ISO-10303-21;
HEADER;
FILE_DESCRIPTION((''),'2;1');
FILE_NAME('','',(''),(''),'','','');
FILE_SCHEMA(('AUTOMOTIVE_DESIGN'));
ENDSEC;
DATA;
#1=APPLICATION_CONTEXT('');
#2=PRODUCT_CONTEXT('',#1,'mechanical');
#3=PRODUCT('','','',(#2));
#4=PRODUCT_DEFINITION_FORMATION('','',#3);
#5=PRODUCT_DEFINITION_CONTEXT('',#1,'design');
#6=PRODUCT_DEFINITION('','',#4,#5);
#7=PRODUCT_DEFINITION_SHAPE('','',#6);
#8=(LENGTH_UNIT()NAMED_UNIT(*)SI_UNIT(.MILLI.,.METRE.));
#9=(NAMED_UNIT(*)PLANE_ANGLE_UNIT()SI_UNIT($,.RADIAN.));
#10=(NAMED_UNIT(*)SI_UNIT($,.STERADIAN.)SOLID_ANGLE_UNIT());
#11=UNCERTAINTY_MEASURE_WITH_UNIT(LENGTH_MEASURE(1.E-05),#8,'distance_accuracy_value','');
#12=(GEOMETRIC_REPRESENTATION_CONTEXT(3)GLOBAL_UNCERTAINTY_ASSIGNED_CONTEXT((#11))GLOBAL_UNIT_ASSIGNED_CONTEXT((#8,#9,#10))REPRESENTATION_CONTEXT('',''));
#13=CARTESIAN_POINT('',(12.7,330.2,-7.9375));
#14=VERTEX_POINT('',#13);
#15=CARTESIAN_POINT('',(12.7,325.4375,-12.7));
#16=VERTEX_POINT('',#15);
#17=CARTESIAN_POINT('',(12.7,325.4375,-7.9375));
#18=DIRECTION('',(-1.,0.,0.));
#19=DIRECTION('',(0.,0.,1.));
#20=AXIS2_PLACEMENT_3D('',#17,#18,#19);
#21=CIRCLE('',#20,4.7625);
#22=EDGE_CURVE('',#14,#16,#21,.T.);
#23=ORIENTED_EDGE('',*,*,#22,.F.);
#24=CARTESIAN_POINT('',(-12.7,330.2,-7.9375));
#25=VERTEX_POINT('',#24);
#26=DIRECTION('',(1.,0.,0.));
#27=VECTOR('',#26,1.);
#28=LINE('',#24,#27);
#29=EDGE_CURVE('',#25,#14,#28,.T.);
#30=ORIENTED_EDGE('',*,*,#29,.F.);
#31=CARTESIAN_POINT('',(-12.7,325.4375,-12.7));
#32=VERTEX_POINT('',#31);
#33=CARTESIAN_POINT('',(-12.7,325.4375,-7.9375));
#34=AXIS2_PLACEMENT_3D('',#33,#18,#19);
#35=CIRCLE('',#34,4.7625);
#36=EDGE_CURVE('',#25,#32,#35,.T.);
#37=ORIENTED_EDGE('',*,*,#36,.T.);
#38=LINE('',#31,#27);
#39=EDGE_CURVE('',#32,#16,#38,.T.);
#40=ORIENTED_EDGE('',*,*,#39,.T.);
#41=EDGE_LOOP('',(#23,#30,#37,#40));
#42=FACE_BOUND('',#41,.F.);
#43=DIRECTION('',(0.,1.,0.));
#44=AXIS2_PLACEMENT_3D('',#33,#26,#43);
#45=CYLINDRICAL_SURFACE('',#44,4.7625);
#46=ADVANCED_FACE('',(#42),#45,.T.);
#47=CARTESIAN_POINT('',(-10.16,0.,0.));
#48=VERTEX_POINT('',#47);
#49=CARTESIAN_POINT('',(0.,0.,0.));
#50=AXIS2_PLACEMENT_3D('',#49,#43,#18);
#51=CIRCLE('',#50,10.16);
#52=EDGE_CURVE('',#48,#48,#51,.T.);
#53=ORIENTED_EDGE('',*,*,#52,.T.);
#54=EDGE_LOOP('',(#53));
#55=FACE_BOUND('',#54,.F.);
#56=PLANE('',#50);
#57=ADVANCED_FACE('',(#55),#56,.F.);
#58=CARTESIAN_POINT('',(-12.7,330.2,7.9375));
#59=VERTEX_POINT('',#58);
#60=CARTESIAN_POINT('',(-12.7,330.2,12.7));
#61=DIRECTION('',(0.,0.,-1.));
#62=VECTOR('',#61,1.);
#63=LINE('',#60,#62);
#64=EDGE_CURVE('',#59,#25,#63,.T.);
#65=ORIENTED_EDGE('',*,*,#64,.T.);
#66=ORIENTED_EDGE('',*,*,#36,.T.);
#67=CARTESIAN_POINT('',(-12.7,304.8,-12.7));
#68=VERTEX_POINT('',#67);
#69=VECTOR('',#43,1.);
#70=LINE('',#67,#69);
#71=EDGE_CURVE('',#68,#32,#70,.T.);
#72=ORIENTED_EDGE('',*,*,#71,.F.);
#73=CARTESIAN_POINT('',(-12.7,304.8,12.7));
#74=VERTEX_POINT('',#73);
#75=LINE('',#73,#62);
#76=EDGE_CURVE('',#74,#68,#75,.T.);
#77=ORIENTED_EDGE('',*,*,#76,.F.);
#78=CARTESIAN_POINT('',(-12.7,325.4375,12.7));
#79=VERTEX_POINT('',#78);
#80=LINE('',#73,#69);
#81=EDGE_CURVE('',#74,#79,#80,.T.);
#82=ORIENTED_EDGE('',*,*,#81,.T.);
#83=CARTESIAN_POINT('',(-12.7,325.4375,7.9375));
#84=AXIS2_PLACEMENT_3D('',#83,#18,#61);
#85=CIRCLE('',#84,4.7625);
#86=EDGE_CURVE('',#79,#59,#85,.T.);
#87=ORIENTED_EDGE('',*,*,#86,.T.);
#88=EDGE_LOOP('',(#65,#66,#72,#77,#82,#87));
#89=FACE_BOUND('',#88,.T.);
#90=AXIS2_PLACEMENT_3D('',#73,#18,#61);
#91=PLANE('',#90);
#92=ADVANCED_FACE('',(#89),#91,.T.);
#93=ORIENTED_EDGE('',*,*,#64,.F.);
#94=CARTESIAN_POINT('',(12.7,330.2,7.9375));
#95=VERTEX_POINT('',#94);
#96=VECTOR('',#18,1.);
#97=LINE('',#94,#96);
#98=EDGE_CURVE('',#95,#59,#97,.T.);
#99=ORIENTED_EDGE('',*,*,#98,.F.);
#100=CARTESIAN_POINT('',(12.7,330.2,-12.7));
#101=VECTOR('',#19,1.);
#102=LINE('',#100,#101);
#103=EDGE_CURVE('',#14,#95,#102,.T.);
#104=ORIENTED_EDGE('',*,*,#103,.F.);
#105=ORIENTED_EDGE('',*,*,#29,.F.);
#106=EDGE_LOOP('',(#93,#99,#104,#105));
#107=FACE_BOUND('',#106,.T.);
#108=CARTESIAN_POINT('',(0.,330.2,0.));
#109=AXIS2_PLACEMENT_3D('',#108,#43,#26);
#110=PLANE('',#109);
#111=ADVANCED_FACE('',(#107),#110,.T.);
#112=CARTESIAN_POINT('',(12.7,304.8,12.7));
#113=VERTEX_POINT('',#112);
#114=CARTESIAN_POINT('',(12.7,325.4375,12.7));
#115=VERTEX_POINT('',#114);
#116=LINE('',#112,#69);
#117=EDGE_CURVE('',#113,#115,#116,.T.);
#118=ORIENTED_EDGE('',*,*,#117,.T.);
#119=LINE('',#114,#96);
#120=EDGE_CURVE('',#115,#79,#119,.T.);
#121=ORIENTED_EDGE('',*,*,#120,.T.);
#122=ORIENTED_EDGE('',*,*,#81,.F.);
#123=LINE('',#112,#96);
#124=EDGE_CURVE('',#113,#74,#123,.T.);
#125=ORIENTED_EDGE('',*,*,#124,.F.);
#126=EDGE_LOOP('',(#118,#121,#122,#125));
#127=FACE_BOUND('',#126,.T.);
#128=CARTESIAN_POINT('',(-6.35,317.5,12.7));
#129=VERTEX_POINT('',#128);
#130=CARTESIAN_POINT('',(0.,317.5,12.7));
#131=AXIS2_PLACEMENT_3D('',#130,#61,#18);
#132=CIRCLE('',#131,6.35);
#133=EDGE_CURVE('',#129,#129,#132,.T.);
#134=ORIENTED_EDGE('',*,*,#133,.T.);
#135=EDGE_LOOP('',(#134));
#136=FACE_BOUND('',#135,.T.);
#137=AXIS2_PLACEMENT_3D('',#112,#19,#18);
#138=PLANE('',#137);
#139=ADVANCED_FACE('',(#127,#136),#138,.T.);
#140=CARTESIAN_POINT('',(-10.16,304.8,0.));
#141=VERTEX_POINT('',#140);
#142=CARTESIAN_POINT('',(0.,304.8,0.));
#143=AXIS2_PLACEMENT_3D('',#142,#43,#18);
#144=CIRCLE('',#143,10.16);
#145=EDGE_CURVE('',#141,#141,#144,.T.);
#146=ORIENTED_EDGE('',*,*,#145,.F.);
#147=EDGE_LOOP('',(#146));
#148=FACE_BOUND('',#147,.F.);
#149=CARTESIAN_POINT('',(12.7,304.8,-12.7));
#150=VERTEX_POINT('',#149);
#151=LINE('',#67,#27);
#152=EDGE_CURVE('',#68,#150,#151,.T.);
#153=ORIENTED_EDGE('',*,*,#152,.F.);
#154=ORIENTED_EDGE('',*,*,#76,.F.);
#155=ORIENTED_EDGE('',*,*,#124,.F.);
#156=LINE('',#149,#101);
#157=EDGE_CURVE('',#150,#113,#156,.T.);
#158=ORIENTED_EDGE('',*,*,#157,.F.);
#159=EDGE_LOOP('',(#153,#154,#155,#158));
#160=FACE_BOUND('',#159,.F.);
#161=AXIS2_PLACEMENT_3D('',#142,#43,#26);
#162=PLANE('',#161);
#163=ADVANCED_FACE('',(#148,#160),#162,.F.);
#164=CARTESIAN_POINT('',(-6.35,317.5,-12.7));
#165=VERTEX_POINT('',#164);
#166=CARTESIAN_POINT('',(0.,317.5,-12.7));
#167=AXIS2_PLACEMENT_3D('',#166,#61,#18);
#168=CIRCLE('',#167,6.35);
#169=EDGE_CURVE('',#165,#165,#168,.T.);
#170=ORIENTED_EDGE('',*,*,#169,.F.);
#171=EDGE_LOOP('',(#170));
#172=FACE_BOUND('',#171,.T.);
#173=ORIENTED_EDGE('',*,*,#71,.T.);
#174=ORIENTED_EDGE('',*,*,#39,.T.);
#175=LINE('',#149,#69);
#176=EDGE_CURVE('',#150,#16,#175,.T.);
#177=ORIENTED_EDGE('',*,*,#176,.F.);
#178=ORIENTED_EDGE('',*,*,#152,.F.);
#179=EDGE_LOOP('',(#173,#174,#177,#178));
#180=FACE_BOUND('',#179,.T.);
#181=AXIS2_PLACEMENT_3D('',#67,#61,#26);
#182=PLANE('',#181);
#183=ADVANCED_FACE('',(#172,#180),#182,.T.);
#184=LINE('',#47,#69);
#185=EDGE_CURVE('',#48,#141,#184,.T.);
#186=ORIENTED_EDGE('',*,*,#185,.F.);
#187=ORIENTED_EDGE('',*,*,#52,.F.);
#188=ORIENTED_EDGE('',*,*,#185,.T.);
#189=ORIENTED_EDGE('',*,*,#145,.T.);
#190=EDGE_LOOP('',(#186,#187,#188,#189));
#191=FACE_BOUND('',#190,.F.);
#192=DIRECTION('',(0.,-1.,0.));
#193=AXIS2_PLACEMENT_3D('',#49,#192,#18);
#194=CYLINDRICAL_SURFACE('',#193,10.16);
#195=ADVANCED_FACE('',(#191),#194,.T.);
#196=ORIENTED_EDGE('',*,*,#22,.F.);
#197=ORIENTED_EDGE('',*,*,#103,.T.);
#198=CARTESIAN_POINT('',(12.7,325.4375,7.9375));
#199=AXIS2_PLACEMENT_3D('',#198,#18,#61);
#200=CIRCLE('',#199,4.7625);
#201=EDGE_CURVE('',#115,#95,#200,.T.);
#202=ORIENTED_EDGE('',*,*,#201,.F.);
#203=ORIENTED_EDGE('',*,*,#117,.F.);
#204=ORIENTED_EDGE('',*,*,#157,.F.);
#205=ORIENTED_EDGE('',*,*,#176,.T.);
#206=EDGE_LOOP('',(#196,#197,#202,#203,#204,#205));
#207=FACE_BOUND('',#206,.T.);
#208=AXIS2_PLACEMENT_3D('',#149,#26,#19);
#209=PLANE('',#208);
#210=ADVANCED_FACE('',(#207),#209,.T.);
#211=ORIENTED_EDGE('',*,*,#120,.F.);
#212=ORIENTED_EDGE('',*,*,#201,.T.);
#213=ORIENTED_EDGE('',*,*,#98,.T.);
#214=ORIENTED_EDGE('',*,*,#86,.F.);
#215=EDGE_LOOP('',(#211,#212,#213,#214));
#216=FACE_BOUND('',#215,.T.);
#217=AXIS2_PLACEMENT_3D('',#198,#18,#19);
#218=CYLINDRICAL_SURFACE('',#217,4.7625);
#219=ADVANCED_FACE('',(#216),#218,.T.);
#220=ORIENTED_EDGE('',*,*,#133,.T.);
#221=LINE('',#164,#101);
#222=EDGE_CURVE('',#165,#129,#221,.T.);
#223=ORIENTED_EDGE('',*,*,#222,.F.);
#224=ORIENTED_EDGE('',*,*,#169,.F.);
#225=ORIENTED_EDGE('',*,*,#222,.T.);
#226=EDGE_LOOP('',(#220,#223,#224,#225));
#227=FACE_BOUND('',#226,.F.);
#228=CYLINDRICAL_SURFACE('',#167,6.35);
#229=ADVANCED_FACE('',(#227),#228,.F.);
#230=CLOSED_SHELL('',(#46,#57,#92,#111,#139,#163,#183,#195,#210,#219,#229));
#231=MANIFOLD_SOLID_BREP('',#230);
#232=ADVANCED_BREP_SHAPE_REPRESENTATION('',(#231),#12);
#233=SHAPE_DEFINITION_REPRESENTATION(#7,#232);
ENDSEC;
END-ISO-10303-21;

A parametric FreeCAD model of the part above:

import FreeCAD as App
import Part
import Sketcher

V = App.Vector
Q = App.Units.Quantity


def edges_at(feature, points):
    """Names of the edges that pass closest to the given points."""
    edges = feature.Shape.Edges
    near = lambda p: min(range(len(edges)), key=lambda i: edges[i].distToShape(Part.Vertex(*p))[0])
    return sorted({f"Edge{near(p) + 1}" for p in points})


def add_polygon(sketch, points):
    """Adds a closed chain of lines whose ends are joined by coincident constraints."""
    first, n = sketch.GeometryCount, len(points)
    for a, b in zip(points, points[1:] + points[:1]):
        sketch.addGeometry(Part.LineSegment(App.Vector(*a, 0), App.Vector(*b, 0)), False)
    for i in range(n):
        sketch.addConstraint(Sketcher.Constraint("Coincident", first + i, 2, first + (i + 1) % n, 1))

doc = App.newDocument("Part")
body = doc.addObject("PartDesign::Body", "Body")

# Sketch on XZ plane
sketch1 = body.newObject("Sketcher::SketchObject", "Sketch")
sketch1.AttachmentSupport = (doc.getObject("XZ_Plane"), [""])
sketch1.MapMode = "FlatFace"
sketch1.addGeometry(Part.Circle(V(0, 0, 0), V(0, 0, 1), 10), False)
sketch1.addConstraint([
    Sketcher.Constraint("Coincident", 0, 3, -1, 1),
    Sketcher.Constraint("Diameter", 0, Q("0.8 in")),
])
pad1 = body.newObject("PartDesign::Pad", "Pad")
pad1.Profile = sketch1
pad1.Length = Q("12 in")
pad1.Reversed = True

# Sketch on XZ plane
sketch2 = body.newObject("Sketcher::SketchObject", "Sketch001")
sketch2.AttachmentSupport = (doc.getObject("XZ_Plane"), [""])
sketch2.MapMode = "FlatFace"
sketch2.AttachmentOffset = App.Placement(V(0, 0, -12 * 25.4), App.Rotation())
add_polygon(sketch2, [(-13, 13), (13, 13), (13, -13), (-13, -13)])  # lines 0-3
sketch2.addConstraint([
    Sketcher.Constraint("Horizontal", 0),
    Sketcher.Constraint("Vertical", 1),
    Sketcher.Constraint("Horizontal", 2),
    Sketcher.Constraint("Vertical", 3),
    Sketcher.Constraint("Symmetric", 0, 2, 2, 2, -1, 1),
    Sketcher.Constraint("Equal", 2, 1),
    Sketcher.Constraint("DistanceX", 0, 1, 0, 2, Q("1 in")),
])
pad2 = body.newObject("PartDesign::Pad", "Pad001")
pad2.Profile = sketch2
pad2.Length = Q("1 in")
pad2.Reversed = True

# Sketch on XY plane
sketch3 = body.newObject("Sketcher::SketchObject", "Sketch002")
sketch3.AttachmentSupport = (doc.getObject("XY_Plane"), [""])
sketch3.MapMode = "FlatFace"
sketch3.AttachmentOffset = App.Placement(V(0, 0, -0.5 * 25.4), App.Rotation())
sketch3.addGeometry(Part.Circle(V(0, 318, 0), V(0, 0, 1), 6), False)
sketch3.addConstraint([
    Sketcher.Constraint("PointOnObject", 0, 3, -2),
    Sketcher.Constraint("Diameter", 0, Q("0.5 in")),
    Sketcher.Constraint("DistanceY", -1, 1, 0, 3, Q("12.5 in")),
])
pocket1 = body.newObject("PartDesign::Pocket", "Pocket")
pocket1.Profile = sketch3
pocket1.Length = Q("1.3125 in")
pocket1.Reversed = True
doc.recompute()

fillet = body.newObject("PartDesign::Fillet", "Fillet")
fillet.Base = (pocket1, edges_at(pocket1, [(0, 330.2, -12.7), (0, 330.2, 12.7)]))
fillet.Radius = Q("0.1875 in")

doc.recompute()
